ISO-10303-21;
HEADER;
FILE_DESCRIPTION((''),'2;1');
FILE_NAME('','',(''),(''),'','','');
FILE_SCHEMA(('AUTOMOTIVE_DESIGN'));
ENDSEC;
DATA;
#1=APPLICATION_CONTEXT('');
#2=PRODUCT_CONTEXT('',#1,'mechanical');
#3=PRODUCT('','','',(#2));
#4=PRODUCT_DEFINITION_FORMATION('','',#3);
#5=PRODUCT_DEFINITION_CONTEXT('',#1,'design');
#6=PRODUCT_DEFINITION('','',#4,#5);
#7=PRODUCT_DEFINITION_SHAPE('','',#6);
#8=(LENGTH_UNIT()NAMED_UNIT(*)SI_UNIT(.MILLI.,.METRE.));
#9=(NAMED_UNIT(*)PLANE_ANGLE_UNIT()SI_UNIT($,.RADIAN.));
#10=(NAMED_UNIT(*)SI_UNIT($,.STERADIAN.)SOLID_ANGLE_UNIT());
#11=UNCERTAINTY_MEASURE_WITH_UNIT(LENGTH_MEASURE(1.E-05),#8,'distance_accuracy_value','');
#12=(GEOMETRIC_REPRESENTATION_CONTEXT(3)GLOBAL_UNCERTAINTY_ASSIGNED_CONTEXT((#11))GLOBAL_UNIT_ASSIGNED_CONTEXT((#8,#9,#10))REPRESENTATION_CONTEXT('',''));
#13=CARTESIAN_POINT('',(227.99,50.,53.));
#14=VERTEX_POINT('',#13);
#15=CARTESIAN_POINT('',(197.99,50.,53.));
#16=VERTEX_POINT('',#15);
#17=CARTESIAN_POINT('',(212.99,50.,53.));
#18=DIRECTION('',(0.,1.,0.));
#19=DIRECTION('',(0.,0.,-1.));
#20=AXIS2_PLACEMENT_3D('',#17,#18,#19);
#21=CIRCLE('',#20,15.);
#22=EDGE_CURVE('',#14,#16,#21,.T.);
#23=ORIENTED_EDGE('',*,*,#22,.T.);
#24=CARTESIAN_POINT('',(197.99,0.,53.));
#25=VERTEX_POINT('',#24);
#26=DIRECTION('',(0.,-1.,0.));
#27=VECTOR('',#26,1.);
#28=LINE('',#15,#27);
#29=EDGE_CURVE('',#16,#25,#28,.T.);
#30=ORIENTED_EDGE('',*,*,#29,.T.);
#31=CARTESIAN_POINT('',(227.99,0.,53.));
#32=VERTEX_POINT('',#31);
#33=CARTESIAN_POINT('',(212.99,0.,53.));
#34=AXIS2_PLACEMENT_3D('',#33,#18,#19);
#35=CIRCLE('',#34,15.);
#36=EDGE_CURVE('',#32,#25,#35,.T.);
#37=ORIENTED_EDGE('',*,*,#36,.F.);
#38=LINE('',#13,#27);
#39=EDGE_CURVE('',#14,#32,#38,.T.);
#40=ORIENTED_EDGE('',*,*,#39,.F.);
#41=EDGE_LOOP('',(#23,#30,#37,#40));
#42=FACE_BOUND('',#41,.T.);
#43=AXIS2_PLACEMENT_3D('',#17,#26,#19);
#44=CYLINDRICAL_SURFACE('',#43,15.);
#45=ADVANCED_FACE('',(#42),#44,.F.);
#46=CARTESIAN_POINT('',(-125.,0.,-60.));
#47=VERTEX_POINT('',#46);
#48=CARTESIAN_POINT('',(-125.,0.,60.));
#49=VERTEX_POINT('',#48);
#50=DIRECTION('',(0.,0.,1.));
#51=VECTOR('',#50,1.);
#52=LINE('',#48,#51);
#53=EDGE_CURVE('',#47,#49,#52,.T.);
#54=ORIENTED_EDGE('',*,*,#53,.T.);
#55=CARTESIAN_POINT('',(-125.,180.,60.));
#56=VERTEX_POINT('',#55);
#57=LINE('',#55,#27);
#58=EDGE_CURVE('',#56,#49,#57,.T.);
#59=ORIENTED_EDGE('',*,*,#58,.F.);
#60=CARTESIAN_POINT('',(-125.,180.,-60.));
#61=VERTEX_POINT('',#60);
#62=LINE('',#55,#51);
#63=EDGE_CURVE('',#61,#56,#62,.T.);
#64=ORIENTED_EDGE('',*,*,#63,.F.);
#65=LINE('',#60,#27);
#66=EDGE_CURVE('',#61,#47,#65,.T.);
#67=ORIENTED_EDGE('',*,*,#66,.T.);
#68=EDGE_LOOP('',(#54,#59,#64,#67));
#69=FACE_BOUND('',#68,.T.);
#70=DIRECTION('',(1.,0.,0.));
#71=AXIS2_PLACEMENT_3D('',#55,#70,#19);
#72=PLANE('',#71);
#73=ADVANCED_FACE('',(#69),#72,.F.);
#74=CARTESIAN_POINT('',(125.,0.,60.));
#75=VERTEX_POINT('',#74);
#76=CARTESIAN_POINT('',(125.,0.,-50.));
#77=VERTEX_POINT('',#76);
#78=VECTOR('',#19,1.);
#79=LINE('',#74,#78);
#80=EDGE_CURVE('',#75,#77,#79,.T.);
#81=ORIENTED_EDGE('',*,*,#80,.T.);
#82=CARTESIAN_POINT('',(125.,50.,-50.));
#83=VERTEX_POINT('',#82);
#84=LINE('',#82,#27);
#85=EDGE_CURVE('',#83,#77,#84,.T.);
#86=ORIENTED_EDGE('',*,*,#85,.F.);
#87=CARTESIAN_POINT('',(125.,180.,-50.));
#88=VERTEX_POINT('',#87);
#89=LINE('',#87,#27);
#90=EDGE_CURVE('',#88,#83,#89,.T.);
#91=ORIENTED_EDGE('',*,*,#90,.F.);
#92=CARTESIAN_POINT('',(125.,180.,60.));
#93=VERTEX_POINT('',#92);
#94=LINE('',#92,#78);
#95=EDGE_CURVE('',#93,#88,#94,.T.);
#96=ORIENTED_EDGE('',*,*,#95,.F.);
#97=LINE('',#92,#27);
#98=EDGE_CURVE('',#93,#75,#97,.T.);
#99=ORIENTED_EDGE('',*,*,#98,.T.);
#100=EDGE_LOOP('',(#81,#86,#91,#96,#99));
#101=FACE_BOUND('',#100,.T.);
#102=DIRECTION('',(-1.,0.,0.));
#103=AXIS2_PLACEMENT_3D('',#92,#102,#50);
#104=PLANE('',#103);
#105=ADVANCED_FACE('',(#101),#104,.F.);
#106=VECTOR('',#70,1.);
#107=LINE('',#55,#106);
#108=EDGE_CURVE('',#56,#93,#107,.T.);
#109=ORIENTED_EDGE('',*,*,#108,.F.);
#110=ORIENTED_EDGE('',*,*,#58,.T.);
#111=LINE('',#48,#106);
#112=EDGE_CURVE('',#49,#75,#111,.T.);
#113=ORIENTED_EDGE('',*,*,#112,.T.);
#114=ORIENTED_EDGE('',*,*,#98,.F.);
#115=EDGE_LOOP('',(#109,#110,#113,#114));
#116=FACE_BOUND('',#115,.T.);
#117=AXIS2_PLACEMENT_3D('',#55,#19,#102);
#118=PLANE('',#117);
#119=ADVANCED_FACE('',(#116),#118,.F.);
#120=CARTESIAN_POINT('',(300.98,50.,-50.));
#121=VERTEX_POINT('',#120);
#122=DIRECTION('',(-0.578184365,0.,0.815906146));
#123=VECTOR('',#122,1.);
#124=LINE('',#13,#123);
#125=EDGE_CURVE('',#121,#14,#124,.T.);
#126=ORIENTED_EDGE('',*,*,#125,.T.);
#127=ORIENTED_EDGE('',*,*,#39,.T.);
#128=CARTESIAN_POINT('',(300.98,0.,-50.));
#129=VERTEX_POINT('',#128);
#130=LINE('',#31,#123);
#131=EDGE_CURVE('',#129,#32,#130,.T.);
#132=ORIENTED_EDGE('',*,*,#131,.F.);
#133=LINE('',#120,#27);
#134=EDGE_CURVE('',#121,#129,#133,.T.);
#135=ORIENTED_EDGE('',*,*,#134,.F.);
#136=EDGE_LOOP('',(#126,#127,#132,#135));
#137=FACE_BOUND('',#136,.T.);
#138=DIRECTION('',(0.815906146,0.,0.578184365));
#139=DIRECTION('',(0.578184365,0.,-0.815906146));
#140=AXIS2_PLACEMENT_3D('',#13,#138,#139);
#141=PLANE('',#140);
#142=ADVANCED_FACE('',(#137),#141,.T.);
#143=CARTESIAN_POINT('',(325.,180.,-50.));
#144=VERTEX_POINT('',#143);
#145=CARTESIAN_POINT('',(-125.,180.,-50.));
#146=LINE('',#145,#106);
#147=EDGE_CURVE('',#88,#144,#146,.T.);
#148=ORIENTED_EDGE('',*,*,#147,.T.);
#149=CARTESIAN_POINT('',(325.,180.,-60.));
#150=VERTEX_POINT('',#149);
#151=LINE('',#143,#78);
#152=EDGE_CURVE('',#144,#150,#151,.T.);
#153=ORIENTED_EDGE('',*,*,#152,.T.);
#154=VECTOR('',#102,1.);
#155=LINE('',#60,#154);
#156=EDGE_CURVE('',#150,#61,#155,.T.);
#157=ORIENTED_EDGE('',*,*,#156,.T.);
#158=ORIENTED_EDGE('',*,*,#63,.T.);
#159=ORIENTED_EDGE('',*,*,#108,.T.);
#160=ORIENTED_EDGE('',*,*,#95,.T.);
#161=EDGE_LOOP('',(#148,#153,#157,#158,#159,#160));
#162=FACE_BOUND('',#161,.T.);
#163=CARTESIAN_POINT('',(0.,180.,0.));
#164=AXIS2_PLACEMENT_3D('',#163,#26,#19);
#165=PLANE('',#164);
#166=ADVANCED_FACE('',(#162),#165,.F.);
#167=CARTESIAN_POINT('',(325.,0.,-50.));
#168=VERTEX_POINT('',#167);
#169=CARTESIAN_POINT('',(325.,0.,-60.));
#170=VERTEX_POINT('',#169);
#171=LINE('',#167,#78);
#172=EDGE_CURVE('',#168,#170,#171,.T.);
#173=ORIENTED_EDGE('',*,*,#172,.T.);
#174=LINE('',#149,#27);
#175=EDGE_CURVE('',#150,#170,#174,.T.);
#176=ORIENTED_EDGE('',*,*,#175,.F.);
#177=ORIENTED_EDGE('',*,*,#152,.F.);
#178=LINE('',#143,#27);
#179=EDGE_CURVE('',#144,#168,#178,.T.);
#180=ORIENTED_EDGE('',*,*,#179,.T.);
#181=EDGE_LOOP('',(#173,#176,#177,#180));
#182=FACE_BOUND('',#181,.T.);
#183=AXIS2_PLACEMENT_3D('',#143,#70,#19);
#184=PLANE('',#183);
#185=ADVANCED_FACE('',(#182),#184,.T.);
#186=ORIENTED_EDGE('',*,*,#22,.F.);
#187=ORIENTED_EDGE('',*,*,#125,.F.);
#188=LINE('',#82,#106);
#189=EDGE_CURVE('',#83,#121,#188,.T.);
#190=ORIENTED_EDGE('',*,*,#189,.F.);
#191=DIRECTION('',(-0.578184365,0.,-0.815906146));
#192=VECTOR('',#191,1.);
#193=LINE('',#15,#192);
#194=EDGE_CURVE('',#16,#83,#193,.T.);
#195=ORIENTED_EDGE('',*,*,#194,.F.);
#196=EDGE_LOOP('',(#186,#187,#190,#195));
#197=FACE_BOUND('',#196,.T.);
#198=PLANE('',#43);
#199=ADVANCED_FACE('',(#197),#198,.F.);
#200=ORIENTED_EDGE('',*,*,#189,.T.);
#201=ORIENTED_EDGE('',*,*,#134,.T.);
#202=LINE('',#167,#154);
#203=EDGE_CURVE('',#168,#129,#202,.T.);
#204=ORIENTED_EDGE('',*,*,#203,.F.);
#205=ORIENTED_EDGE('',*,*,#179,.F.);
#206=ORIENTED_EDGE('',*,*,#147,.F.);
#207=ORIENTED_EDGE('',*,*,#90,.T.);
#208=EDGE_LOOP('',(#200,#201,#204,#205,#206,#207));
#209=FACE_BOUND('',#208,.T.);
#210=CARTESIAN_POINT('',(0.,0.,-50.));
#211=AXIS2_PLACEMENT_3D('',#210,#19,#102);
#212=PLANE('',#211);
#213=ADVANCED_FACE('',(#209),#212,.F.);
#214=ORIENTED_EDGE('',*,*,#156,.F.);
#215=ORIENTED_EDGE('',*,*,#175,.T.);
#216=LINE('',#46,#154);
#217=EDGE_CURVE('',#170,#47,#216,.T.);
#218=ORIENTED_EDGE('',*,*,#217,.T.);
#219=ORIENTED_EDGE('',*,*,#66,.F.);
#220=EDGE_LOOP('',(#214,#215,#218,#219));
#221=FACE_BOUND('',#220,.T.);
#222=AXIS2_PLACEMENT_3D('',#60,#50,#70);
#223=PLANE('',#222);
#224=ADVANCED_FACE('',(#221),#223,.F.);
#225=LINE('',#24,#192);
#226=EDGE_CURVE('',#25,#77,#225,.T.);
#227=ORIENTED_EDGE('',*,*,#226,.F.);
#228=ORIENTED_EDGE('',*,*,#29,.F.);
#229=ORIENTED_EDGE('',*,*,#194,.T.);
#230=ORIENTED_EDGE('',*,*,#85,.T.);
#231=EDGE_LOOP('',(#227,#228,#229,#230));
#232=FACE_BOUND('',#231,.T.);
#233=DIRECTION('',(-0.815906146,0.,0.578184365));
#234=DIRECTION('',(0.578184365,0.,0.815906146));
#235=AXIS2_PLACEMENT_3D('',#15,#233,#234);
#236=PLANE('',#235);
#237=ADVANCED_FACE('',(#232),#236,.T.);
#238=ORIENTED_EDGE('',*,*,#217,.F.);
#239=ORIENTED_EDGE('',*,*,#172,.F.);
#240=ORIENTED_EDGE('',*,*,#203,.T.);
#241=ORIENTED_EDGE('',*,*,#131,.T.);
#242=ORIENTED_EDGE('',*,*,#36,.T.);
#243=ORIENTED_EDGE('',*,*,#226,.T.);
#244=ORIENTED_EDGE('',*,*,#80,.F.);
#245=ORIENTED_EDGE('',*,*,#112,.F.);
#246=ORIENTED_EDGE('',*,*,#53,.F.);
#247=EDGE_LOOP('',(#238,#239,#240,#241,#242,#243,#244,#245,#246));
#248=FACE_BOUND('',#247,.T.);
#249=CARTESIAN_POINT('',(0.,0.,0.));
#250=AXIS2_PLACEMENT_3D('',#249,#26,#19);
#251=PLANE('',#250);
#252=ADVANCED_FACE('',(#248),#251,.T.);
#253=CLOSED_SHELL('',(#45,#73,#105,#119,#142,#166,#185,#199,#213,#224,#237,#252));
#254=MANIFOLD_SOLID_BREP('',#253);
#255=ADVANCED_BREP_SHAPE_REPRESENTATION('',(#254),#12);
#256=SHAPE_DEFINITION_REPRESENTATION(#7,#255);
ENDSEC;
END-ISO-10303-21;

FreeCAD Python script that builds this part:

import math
import FreeCAD as App
import Part
import Sketcher
from FreeCAD import Vector
Q = App.Units.Quantity

doc = App.newDocument("Part")
params = doc.addObject("Spreadsheet::Sheet", "Params")
for row, (alias, value) in enumerate([
    ("sketch1_width", "250 mm"),
    ("sketch1_height", "120 mm"),
    ("pad1_length", "180 mm"),
    ("sketch2_width", "450 mm"),
    ("sketch2_height", "180 mm"),
    ("pad2_length", "10 mm"),
    ("sketch3_radius", "15 mm"),
    ("sketch3_width", "175.98 mm"),
    ("pad3_length", "50 mm"),
], start=1):
    params.set(f"A{row}", alias)
    params.set(f"B{row}", "=" + value)
    params.setAlias(f"B{row}", alias)

body = doc.addObject("PartDesign::Body", "Body")

sketch1 = doc.addObject("Sketcher::SketchObject", "Sketch")
body.addObject(sketch1)
sketch1.AttachmentSupport = (doc.XZ_Plane, [""])
sketch1.MapMode = "FlatFace"
sketch1.addGeometry([
    Part.LineSegment(Vector(-125, -60, 0), Vector(-125, 60, 0)),
    Part.LineSegment(Vector(-125, 60, 0), Vector(125, 60, 0)),
    Part.LineSegment(Vector(125, 60, 0), Vector(125, -60, 0)),
    Part.LineSegment(Vector(125, -60, 0), Vector(-125, -60, 0)),
], False)
sketch1.addConstraint([
    Sketcher.Constraint("Coincident", 0, 2, 1, 1),
    Sketcher.Constraint("Coincident", 1, 2, 2, 1),
    Sketcher.Constraint("Coincident", 2, 2, 3, 1),
    Sketcher.Constraint("Coincident", 3, 2, 0, 1),
    Sketcher.Constraint("Vertical", 0),
    Sketcher.Constraint("Horizontal", 1),
    Sketcher.Constraint("Vertical", 2),
    Sketcher.Constraint("Horizontal", 3),
    Sketcher.Constraint("Symmetric", 0, 2, 2, 2, -1, 1),
    Sketcher.Constraint("DistanceX", 1, 1, 1, 2, Q("250 mm")),
    Sketcher.Constraint("DistanceY", 0, 1, 0, 2, Q("120 mm")),
])
sketch1.setExpression("Constraints[9]", "Params.sketch1_width")
sketch1.setExpression("Constraints[10]", "Params.sketch1_height")
pad1 = doc.addObject("PartDesign::Pad", "Pad")
body.addObject(pad1)
pad1.Profile = sketch1
pad1.setExpression("Length", "Params.pad1_length")
pad1.Reversed = True

sketch2 = doc.addObject("Sketcher::SketchObject", "Sketch001")
body.addObject(sketch2)
sketch2.AttachmentSupport = (doc.XY_Plane, [""])
sketch2.MapMode = "FlatFace"
sketch2.AttachmentOffset = App.Placement(Vector(0, 0, -60), App.Rotation())
sketch2.addGeometry([
    Part.LineSegment(Vector(325, 180, 0), Vector(325, 0, 0)),
    Part.LineSegment(Vector(325, 0, 0), Vector(-125, 0, 0)),
    Part.LineSegment(Vector(-125, 0, 0), Vector(-125, 180, 0)),
    Part.LineSegment(Vector(-125, 180, 0), Vector(325, 180, 0)),
], False)
sketch2.addConstraint([
    Sketcher.Constraint("Coincident", 0, 2, 1, 1),
    Sketcher.Constraint("Coincident", 1, 2, 2, 1),
    Sketcher.Constraint("Coincident", 2, 2, 3, 1),
    Sketcher.Constraint("Coincident", 3, 2, 0, 1),
    Sketcher.Constraint("Vertical", 0),
    Sketcher.Constraint("Horizontal", 1),
    Sketcher.Constraint("Vertical", 2),
    Sketcher.Constraint("Horizontal", 3),
    Sketcher.Constraint("PointOnObject", 0, 2, -1),
    Sketcher.Constraint("DistanceX", 1, 2, 1, 1, Q("450 mm")),
    Sketcher.Constraint("DistanceY", 0, 2, 0, 1, Q("180 mm")),
    Sketcher.Constraint("DistanceX", -1, 1, 0, 2, Q("325 mm")),
])
sketch2.setExpression("Constraints[9]", "Params.sketch2_width")
sketch2.setExpression("Constraints[10]", "Params.sketch2_height")
pad2 = doc.addObject("PartDesign::Pad", "Pad001")
body.addObject(pad2)
pad2.Profile = sketch2
pad2.setExpression("Length", "Params.pad2_length")

sketch3 = doc.addObject("Sketcher::SketchObject", "Sketch002")
body.addObject(sketch3)
sketch3.AttachmentSupport = (doc.XZ_Plane, [""])
sketch3.MapMode = "FlatFace"
sketch3.addGeometry([
    Part.LineSegment(Vector(125, -50, 0), Vector(300.98, -50, 0)),
    Part.LineSegment(Vector(300.98, -50, 0), Vector(227.99, 53, 0)),
    Part.ArcOfCircle(Part.Circle(Vector(212.99, 53, 0), Vector(0, 0, 1), 15), math.radians(180), math.radians(360)),
    Part.LineSegment(Vector(197.99, 53, 0), Vector(125, -50, 0)),
], False)
sketch3.addConstraint([
    Sketcher.Constraint("Coincident", 0, 2, 1, 1),
    Sketcher.Constraint("Coincident", 1, 2, 2, 2),
    Sketcher.Constraint("Coincident", 2, 1, 3, 1),
    Sketcher.Constraint("Coincident", 3, 2, 0, 1),
    Sketcher.Constraint("Horizontal", 0),
    Sketcher.Constraint("Horizontal", 2, 3, 1, 2),
    Sketcher.Constraint("Horizontal", 1, 2, 2, 1),
    Sketcher.Constraint("Equal", 1, 3),
    Sketcher.Constraint("Radius", 2, Q("15 mm")),
    Sketcher.Constraint("DistanceY", -1, 1, 2, 3, Q("53 mm")),
    Sketcher.Constraint("DistanceY", 0, 2, -1, 1, Q("50 mm")),
    Sketcher.Constraint("DistanceX", -1, 1, 3, 2, Q("125 mm")),
    Sketcher.Constraint("DistanceX", 0, 1, 0, 2, Q("175.98 mm")),
])
sketch3.setExpression("Constraints[8]", "Params.sketch3_radius")
sketch3.setExpression("Constraints[12]", "Params.sketch3_width")
pad3 = doc.addObject("PartDesign::Pad", "Pad002")
body.addObject(pad3)
pad3.Profile = sketch3
pad3.setExpression("Length", "Params.pad3_length")
pad3.Reversed = True

doc.recompute()
